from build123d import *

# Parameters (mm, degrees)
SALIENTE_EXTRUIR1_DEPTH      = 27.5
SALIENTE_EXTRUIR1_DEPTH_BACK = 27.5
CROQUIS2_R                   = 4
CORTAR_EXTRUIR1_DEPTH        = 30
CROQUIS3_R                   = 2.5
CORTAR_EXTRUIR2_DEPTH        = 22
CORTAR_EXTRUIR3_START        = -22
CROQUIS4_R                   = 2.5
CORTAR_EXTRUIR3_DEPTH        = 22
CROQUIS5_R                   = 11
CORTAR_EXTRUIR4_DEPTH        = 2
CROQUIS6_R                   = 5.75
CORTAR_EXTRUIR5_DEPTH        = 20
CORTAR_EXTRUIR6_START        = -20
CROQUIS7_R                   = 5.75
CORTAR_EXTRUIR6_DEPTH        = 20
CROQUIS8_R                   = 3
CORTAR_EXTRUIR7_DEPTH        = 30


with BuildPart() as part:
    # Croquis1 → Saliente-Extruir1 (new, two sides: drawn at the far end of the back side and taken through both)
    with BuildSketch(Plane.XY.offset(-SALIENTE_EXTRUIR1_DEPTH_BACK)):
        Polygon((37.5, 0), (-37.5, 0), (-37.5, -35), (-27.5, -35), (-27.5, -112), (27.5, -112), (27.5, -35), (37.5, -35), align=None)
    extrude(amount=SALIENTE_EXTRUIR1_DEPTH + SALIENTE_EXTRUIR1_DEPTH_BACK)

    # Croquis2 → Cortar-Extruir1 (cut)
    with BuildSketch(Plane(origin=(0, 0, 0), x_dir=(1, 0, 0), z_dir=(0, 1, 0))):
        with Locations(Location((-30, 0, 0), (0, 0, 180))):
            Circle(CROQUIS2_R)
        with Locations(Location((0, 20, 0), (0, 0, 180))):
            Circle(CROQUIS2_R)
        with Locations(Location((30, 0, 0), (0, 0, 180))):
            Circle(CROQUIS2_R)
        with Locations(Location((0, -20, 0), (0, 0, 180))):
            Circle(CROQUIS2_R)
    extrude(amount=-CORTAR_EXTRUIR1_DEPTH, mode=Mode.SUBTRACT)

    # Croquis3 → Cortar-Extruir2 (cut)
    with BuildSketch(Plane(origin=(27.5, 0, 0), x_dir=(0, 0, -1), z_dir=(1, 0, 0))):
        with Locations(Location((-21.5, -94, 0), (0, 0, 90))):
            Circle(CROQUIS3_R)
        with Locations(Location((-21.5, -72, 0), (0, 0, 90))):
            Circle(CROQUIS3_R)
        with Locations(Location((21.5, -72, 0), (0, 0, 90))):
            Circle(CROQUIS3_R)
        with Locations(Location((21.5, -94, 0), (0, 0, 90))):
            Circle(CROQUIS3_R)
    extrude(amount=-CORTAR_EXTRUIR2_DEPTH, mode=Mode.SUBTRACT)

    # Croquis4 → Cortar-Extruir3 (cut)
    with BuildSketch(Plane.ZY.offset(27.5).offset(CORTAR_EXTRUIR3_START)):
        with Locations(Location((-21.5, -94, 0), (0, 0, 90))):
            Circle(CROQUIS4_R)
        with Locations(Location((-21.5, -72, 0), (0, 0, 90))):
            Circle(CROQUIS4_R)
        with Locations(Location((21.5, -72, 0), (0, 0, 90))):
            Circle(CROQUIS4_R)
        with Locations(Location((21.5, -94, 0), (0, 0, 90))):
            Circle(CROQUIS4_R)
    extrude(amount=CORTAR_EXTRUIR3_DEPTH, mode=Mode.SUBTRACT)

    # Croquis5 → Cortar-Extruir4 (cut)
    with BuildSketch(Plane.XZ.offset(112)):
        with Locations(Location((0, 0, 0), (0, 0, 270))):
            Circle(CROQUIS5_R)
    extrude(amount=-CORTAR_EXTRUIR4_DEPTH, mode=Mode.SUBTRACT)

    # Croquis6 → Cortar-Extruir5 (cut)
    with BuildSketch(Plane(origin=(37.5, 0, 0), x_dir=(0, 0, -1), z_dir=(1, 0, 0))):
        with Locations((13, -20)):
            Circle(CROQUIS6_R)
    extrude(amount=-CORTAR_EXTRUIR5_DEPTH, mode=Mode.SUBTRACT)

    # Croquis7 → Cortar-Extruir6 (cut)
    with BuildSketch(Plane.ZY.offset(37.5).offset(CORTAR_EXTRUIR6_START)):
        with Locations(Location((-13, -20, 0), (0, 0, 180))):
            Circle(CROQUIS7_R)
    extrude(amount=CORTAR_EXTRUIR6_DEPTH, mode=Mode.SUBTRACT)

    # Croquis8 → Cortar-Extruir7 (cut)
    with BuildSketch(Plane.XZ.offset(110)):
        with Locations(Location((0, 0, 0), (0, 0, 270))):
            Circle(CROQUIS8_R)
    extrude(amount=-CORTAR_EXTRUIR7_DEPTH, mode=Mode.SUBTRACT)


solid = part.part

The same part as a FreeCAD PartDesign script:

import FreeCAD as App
import Part
import Sketcher

V = App.Vector
Q = App.Units.Quantity

doc = App.newDocument("Part")
body = doc.addObject("PartDesign::Body", "Body")

# Sketch on XY plane
sketch1 = doc.addObject("Sketcher::SketchObject", "Sketch")
body.addObject(sketch1)
sketch1.AttachmentSupport = (doc.XY_Plane, [""])
sketch1.MapMode = "FlatFace"
sketch1.addGeometry([
    Part.LineSegment(V(38, 0, 0), V(-38, 0, 0)),  # 0
    Part.LineSegment(V(-38, 0, 0), V(-38, -35, 0)),  # 1
    Part.LineSegment(V(-38, -35, 0), V(-28, -35, 0)),  # 2
    Part.LineSegment(V(-28, -35, 0), V(-28, -112, 0)),  # 3
    Part.LineSegment(V(-28, -112, 0), V(28, -112, 0)),  # 4
    Part.LineSegment(V(28, -112, 0), V(28, -35, 0)),  # 5
    Part.LineSegment(V(28, -35, 0), V(38, -35, 0)),  # 6
    Part.LineSegment(V(38, -35, 0), V(38, 0, 0)),  # 7
], False)
sketch1.addConstraint([
    Sketcher.Constraint("Coincident", 0, 2, 1, 1),
    Sketcher.Constraint("Coincident", 1, 2, 2, 1),
    Sketcher.Constraint("Coincident", 2, 2, 3, 1),
    Sketcher.Constraint("Coincident", 3, 2, 4, 1),
    Sketcher.Constraint("Coincident", 4, 2, 5, 1),
    Sketcher.Constraint("Coincident", 5, 2, 6, 1),
    Sketcher.Constraint("Coincident", 6, 2, 7, 1),
    Sketcher.Constraint("Coincident", 7, 2, 0, 1),
    Sketcher.Constraint("Horizontal", 0),
    Sketcher.Constraint("Vertical", 1),
    Sketcher.Constraint("Horizontal", 2),
    Sketcher.Constraint("Vertical", 3),
    Sketcher.Constraint("Horizontal", 4),
    Sketcher.Constraint("Vertical", 5),
    Sketcher.Constraint("Horizontal", 6),
    Sketcher.Constraint("Vertical", 7),
    Sketcher.Constraint("Symmetric", 0, 2, 7, 2, -1, 1),
    Sketcher.Constraint("Symmetric", 2, 2, 5, 2, -2),
    Sketcher.Constraint("DistanceX", 0, 2, 0, 1, Q("75 mm")),
    Sketcher.Constraint("DistanceX", 2, 1, 2, 2, Q("10 mm")),
    Sketcher.Constraint("DistanceY", 1, 2, 1, 1, Q("35 mm")),
    Sketcher.Constraint("DistanceY", 3, 2, 3, 1, Q("77 mm")),
])
pad1 = doc.addObject("PartDesign::Pad", "Pad")
body.addObject(pad1)
pad1.Profile = sketch1
pad1.Type = "TwoLengths"
pad1.Length = 27.5
pad1.Length2 = 27.5

# Sketch on XZ plane
sketch2 = doc.addObject("Sketcher::SketchObject", "Sketch001")
body.addObject(sketch2)
sketch2.AttachmentSupport = (doc.XZ_Plane, [""])
sketch2.MapMode = "FlatFace"
sketch2.addGeometry([
    Part.Circle(V(-30, 0, 0), V(0, 0, 1), 4),
    Part.Circle(V(0, -20, 0), V(0, 0, 1), 4),
    Part.Circle(V(30, 0, 0), V(0, 0, 1), 4),
    Part.Circle(V(0, 20, 0), V(0, 0, 1), 4),
], False)
sketch2.addConstraint([
    Sketcher.Constraint("Equal", 0, 1),
    Sketcher.Constraint("Equal", 1, 2),
    Sketcher.Constraint("Equal", 2, 3),
    Sketcher.Constraint("Symmetric", 0, 3, 2, 3, -1, 1),
    Sketcher.Constraint("Symmetric", 1, 3, 3, 3, -1, 1),
    Sketcher.Constraint("PointOnObject", 0, 3, -1),
    Sketcher.Constraint("PointOnObject", 1, 3, -2),
    Sketcher.Constraint("Diameter", 0, Q("8 mm")),
    Sketcher.Constraint("DistanceX", 0, 3, -1, 1, Q("30 mm")),
    Sketcher.Constraint("DistanceY", 1, 3, -1, 1, Q("20 mm")),
])
pocket1 = doc.addObject("PartDesign::Pocket", "Pocket")
body.addObject(pocket1)
pocket1.Profile = sketch2
pocket1.Length = 30
pocket1.Reversed = True

# Sketch on YZ plane
sketch3 = doc.addObject("Sketcher::SketchObject", "Sketch002")
body.addObject(sketch3)
sketch3.AttachmentSupport = (doc.YZ_Plane, [""])
sketch3.MapMode = "FlatFace"
sketch3.AttachmentOffset = App.Placement(V(0, 0, 27.5), App.Rotation())
sketch3.addGeometry([
    Part.Circle(V(-94, 21.5, 0), V(0, 0, 1), 2.5),
    Part.Circle(V(-72, 21.5, 0), V(0, 0, 1), 2.5),
    Part.Circle(V(-72, -21.5, 0), V(0, 0, 1), 2.5),
    Part.Circle(V(-94, -21.5, 0), V(0, 0, 1), 2.5),
], False)
sketch3.addConstraint([
    Sketcher.Constraint("Equal", 0, 1),
    Sketcher.Constraint("Equal", 1, 2),
    Sketcher.Constraint("Equal", 2, 3),
    Sketcher.Constraint("Symmetric", 1, 3, 2, 3, -1),
    Sketcher.Constraint("Symmetric", 0, 3, 3, 3, -1),
    Sketcher.Constraint("Horizontal", 0, 3, 1, 3),
    Sketcher.Constraint("Diameter", 0, Q("5 mm")),
    Sketcher.Constraint("DistanceX", 0, 3, -1, 1, Q("94 mm")),
    Sketcher.Constraint("DistanceX", 1, 3, -1, 1, Q("72 mm")),
    Sketcher.Constraint("DistanceY", 2, 3, 1, 3, Q("43 mm")),
])
pocket2 = doc.addObject("PartDesign::Pocket", "Pocket001")
body.addObject(pocket2)
pocket2.Profile = sketch3
pocket2.Length = 22

# Sketch on YZ plane
sketch4 = doc.addObject("Sketcher::SketchObject", "Sketch003")
body.addObject(sketch4)
sketch4.AttachmentSupport = (doc.YZ_Plane, [""])
sketch4.MapMode = "FlatFace"
sketch4.AttachmentOffset = App.Placement(V(0, 0, -5.5), App.Rotation())
sketch4.addGeometry([
    Part.Circle(V(-94, -21.5, 0), V(0, 0, 1), 2.5),
    Part.Circle(V(-72, -21.5, 0), V(0, 0, 1), 2.5),
    Part.Circle(V(-72, 21.5, 0), V(0, 0, 1), 2.5),
    Part.Circle(V(-94, 21.5, 0), V(0, 0, 1), 2.5),
], False)
sketch4.addConstraint([
    Sketcher.Constraint("Equal", 0, 1),
    Sketcher.Constraint("Equal", 1, 2),
    Sketcher.Constraint("Equal", 2, 3),
    Sketcher.Constraint("Symmetric", 1, 3, 2, 3, -1),
    Sketcher.Constraint("Symmetric", 0, 3, 3, 3, -1),
    Sketcher.Constraint("Horizontal", 0, 3, 1, 3),
    Sketcher.Constraint("Diameter", 0, Q("5 mm")),
    Sketcher.Constraint("DistanceX", 0, 3, -1, 1, Q("94 mm")),
    Sketcher.Constraint("DistanceX", 1, 3, -1, 1, Q("72 mm")),
    Sketcher.Constraint("DistanceY", 1, 3, 2, 3, Q("43 mm")),
])
pocket3 = doc.addObject("PartDesign::Pocket", "Pocket002")
body.addObject(pocket3)
pocket3.Profile = sketch4
pocket3.Length = 22

# Sketch on XZ plane
sketch5 = doc.addObject("Sketcher::SketchObject", "Sketch004")
body.addObject(sketch5)
sketch5.AttachmentSupport = (doc.XZ_Plane, [""])
sketch5.MapMode = "FlatFace"
sketch5.AttachmentOffset = App.Placement(V(0, 0, 112), App.Rotation())
sketch5.addGeometry(Part.Circle(V(0, 0, 0), V(0, 0, 1), 11), False)
sketch5.addConstraint([
    Sketcher.Constraint("Coincident", 0, 3, -1, 1),
    Sketcher.Constraint("Diameter", 0, Q("22 mm")),
])
pocket4 = doc.addObject("PartDesign::Pocket", "Pocket003")
body.addObject(pocket4)
pocket4.Profile = sketch5
pocket4.Length = 2

# Sketch on YZ plane
sketch6 = doc.addObject("Sketcher::SketchObject", "Sketch005")
body.addObject(sketch6)
sketch6.AttachmentSupport = (doc.YZ_Plane, [""])
sketch6.MapMode = "FlatFace"
sketch6.AttachmentOffset = App.Placement(V(0, 0, 37.5), App.Rotation())
sketch6.addGeometry(Part.Circle(V(-20, -13, 0), V(0, 0, 1), 6), False)
sketch6.addConstraint([
    Sketcher.Constraint("Diameter", 0, Q("11.5 mm")),
    Sketcher.Constraint("DistanceX", 0, 3, -1, 1, Q("20 mm")),
    Sketcher.Constraint("DistanceY", 0, 3, -1, 1, Q("13 mm")),
])
pocket5 = doc.addObject("PartDesign::Pocket", "Pocket004")
body.addObject(pocket5)
pocket5.Profile = sketch6
pocket5.Length = 20

# Sketch on YZ plane
sketch7 = doc.addObject("Sketcher::SketchObject", "Sketch006")
body.addObject(sketch7)
sketch7.AttachmentSupport = (doc.YZ_Plane, [""])
sketch7.MapMode = "FlatFace"
sketch7.AttachmentOffset = App.Placement(V(0, 0, -17.5), App.Rotation())
sketch7.addGeometry(Part.Circle(V(-20, -13, 0), V(0, 0, 1), 6), False)
sketch7.addConstraint([
    Sketcher.Constraint("Diameter", 0, Q("11.5 mm")),
    Sketcher.Constraint("DistanceX", 0, 3, -1, 1, Q("20 mm")),
    Sketcher.Constraint("DistanceY", 0, 3, -1, 1, Q("13 mm")),
])
pocket6 = doc.addObject("PartDesign::Pocket", "Pocket005")
body.addObject(pocket6)
pocket6.Profile = sketch7
pocket6.Length = 20

# Sketch on XZ plane
sketch8 = doc.addObject("Sketcher::SketchObject", "Sketch007")
body.addObject(sketch8)
sketch8.AttachmentSupport = (doc.XZ_Plane, [""])
sketch8.MapMode = "FlatFace"
sketch8.AttachmentOffset = App.Placement(V(0, 0, 110), App.Rotation())
sketch8.addGeometry(Part.Circle(V(0, 0, 0), V(0, 0, 1), 3), False)
sketch8.addConstraint([
    Sketcher.Constraint("Coincident", 0, 3, -1, 1),
    Sketcher.Constraint("Diameter", 0, Q("6 mm")),
])
pocket7 = doc.addObject("PartDesign::Pocket", "Pocket006")
body.addObject(pocket7)
pocket7.Profile = sketch8
pocket7.Length = 30

doc.recompute()
